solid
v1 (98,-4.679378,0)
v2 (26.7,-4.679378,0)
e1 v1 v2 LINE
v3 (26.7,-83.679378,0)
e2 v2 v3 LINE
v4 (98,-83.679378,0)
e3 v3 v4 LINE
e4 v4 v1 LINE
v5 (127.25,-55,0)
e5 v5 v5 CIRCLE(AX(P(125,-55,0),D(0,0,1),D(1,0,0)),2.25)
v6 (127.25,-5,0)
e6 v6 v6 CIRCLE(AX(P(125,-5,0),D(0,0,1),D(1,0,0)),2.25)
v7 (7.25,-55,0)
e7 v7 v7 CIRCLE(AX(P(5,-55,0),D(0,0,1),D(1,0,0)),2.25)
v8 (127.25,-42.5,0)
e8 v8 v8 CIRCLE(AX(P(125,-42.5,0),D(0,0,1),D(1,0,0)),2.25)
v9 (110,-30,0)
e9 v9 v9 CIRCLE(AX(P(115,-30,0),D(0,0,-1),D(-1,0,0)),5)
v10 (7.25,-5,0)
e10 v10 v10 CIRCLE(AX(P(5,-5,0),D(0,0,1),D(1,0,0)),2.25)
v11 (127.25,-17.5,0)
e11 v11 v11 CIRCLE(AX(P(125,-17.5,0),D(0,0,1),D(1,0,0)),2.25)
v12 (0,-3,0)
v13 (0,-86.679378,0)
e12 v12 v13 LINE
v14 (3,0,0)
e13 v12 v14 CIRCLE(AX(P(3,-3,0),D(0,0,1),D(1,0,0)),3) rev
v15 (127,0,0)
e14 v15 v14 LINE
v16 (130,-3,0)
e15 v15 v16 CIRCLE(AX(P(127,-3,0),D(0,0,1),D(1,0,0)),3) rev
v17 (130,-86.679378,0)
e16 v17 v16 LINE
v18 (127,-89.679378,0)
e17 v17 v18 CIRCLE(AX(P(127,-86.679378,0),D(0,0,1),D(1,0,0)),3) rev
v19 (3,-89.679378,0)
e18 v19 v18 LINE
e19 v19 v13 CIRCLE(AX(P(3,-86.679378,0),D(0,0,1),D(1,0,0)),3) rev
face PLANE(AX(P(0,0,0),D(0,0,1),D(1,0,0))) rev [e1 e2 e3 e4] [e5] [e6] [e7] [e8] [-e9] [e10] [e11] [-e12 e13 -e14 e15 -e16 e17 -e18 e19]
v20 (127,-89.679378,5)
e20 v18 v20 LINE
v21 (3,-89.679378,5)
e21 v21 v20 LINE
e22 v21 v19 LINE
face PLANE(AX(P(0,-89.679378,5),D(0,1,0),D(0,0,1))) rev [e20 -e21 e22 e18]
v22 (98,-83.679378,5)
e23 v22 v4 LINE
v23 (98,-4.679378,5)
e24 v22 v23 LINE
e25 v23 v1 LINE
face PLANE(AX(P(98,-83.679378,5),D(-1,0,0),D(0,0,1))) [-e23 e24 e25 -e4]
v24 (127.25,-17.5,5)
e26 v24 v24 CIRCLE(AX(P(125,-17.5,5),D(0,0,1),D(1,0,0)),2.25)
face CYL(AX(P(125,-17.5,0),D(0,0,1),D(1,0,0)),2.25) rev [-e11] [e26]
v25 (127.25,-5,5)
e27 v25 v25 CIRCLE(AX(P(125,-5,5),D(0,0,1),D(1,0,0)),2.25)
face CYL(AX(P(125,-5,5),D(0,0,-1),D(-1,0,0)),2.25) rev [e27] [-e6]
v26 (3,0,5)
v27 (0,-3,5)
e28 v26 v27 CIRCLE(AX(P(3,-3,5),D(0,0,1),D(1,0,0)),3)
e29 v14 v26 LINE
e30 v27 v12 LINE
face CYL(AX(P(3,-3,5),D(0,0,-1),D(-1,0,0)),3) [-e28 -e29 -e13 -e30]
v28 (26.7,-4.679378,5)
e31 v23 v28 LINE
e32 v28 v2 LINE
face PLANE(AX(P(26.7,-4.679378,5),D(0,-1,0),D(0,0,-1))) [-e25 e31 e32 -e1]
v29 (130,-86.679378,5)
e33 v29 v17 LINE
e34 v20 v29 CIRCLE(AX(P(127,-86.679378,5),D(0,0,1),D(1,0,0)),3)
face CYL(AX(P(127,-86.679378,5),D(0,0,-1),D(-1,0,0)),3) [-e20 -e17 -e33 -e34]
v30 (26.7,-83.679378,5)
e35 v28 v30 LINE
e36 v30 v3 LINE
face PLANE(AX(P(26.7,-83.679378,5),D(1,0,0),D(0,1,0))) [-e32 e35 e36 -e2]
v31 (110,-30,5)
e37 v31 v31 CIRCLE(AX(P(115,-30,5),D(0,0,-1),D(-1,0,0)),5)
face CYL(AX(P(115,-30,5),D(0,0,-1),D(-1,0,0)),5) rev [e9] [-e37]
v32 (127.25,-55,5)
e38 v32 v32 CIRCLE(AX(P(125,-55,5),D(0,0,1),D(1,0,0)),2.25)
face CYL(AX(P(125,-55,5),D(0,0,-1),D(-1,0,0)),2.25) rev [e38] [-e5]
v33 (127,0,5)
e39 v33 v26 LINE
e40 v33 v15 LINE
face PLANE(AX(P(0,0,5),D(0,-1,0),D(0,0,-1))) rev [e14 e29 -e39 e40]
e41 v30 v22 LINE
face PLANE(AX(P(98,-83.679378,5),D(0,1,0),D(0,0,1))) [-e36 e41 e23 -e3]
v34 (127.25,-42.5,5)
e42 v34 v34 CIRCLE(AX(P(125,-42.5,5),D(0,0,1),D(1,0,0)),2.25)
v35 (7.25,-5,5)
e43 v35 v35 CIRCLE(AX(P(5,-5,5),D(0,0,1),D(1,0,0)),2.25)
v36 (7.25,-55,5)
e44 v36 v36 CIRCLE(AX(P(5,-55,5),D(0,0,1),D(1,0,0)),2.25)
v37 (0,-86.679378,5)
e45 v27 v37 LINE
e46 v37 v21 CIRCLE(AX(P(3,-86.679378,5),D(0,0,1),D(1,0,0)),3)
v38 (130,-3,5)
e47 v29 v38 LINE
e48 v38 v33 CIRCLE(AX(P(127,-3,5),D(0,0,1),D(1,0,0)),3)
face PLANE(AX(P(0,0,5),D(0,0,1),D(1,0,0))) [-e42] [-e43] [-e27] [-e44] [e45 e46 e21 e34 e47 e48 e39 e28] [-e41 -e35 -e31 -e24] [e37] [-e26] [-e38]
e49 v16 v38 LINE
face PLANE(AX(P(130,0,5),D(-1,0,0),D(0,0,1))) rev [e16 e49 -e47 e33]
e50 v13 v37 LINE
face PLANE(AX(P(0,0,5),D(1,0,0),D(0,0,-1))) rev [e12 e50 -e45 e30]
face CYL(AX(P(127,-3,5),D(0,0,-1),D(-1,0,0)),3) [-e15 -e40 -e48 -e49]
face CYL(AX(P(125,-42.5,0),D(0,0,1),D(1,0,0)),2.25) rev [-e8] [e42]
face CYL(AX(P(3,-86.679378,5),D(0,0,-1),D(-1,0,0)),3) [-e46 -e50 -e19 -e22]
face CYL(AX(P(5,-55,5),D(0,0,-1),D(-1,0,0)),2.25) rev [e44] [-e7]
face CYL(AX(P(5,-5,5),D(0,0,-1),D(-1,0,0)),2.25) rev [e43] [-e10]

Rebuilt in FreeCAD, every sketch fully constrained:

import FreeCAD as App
import Part
import Sketcher
from FreeCAD import Vector


def edges_at(feature, points):
    """Names of the edges that pass closest to the given points."""
    edges = feature.Shape.Edges
    near = lambda p: min(range(len(edges)), key=lambda i: edges[i].distToShape(Part.Vertex(*p))[0])
    return sorted({f"Edge{near(p) + 1}" for p in points})

doc = App.newDocument("Part")
body = doc.addObject("PartDesign::Body", "Body")

# Sketch on XY plane
sketch1 = body.newObject("Sketcher::SketchObject", "Sketch")
sketch1.AttachmentSupport = (doc.getObject("XY_Plane"), [""])
sketch1.MapMode = "FlatFace"
sketch1.addGeometry([
    Part.LineSegment(Vector(0, 0, 0), Vector(0, -89.679378, 0)),  # 0
    Part.LineSegment(Vector(0, -89.679378, 0), Vector(130, -89.679378, 0)),  # 1
    Part.LineSegment(Vector(130, -89.679378, 0), Vector(130, 0, 0)),  # 2
    Part.LineSegment(Vector(130, 0, 0), Vector(0, 0, 0)),  # 3
    Part.Circle(Vector(5, -55, 0), Vector(0, 0, 1), 2.25),  # 4
    Part.LineSegment(Vector(98, -83.679378, 0), Vector(26.7, -83.679378, 0)),  # 5
    Part.LineSegment(Vector(26.7, -83.679378, 0), Vector(26.7, -4.679378, 0)),  # 6
    Part.LineSegment(Vector(26.7, -4.679378, 0), Vector(98, -4.679378, 0)),  # 7
    Part.LineSegment(Vector(98, -4.679378, 0), Vector(98, -83.679378, 0)),  # 8
    Part.Circle(Vector(125, -55, 0), Vector(0, 0, 1), 2.25),  # 9
    Part.Circle(Vector(5, -5, 0), Vector(0, 0, 1), 2.25),  # 10
    Part.Circle(Vector(125, -5, 0), Vector(0, 0, 1), 2.25),  # 11
], False)
sketch1.addConstraint([
    Sketcher.Constraint("Coincident", 0, 2, 1, 1),
    Sketcher.Constraint("Coincident", 1, 2, 2, 1),
    Sketcher.Constraint("Coincident", 2, 2, 3, 1),
    Sketcher.Constraint("Coincident", 3, 2, 0, 1),
    Sketcher.Constraint("Coincident", 5, 2, 6, 1),
    Sketcher.Constraint("Coincident", 6, 2, 7, 1),
    Sketcher.Constraint("Coincident", 7, 2, 8, 1),
    Sketcher.Constraint("Coincident", 8, 2, 5, 1),
    Sketcher.Constraint("Vertical", 0),
    Sketcher.Constraint("Horizontal", 1),
    Sketcher.Constraint("Vertical", 2),
    Sketcher.Constraint("Horizontal", 3),
    Sketcher.Constraint("Horizontal", 5),
    Sketcher.Constraint("Vertical", 6),
    Sketcher.Constraint("Horizontal", 7),
    Sketcher.Constraint("Vertical", 8),
    Sketcher.Constraint("Coincident", 3, 2, -1, 1),
    Sketcher.Constraint("Equal", 4, 9),
    Sketcher.Constraint("Equal", 9, 10),
    Sketcher.Constraint("Equal", 10, 11),
    Sketcher.Constraint("Horizontal", 4, 3, 9, 3),
    Sketcher.Constraint("Horizontal", 10, 3, 11, 3),
    Sketcher.Constraint("Vertical", 4, 3, 10, 3),
    Sketcher.Constraint("Vertical", 9, 3, 11, 3),
    Sketcher.Constraint("Diameter", 4, 4.5),
    Sketcher.Constraint("DistanceX", 1, 1, 1, 2, 130.0),
    Sketcher.Constraint("DistanceY", 6, 1, 6, 2, 79.0),
    Sketcher.Constraint("DistanceX", 5, 2, 5, 1, 71.3),
    Sketcher.Constraint("DistanceX", -1, 1, 4, 3, 5.0),
    Sketcher.Constraint("DistanceY", 4, 3, -1, 1, 55.0),
    Sketcher.Constraint("DistanceX", -1, 1, 9, 3, 125.0),
    Sketcher.Constraint("DistanceY", 10, 3, -1, 1, 5.0),
    Sketcher.Constraint("DistanceX", -1, 1, 7, 2, 98.0),
    Sketcher.Constraint("DistanceY", 0, 2, 5, 2, 6.0),
    Sketcher.Constraint("DistanceY", 0, 2, 0, 1, 89.679378),
])
pad1 = body.newObject("PartDesign::Pad", "Pad")
pad1.Profile = sketch1
pad1.Length = 5
doc.recompute()

fillet = body.newObject("PartDesign::Fillet", "Fillet")
fillet.Base = (pad1, edges_at(pad1, [
    (0, 0, 2.5),
    (130, 0, 2.5),
    (130, -89.679, 2.5),
    (0, -89.679, 2.5),
]))
fillet.Radius = 3

# Sketch on XY plane
sketch2 = body.newObject("Sketcher::SketchObject", "Sketch001")
sketch2.AttachmentSupport = (doc.getObject("XY_Plane"), [""])
sketch2.MapMode = "FlatFace"
sketch2.addGeometry(Part.Circle(Vector(115, -30, 0), Vector(0, 0, 1), 5), False)
sketch2.addConstraint([
    Sketcher.Constraint("Diameter", 0, 10.0),
    Sketcher.Constraint("DistanceX", -1, 1, 0, 3, 115.0),
    Sketcher.Constraint("DistanceY", 0, 3, -1, 1, 30.0),
])
pocket1 = body.newObject("PartDesign::Pocket", "Pocket")
pocket1.Profile = sketch2
pocket1.Length = 5
pocket1.Reversed = True

# Sketch on XY plane
sketch3 = body.newObject("Sketcher::SketchObject", "Sketch002")
sketch3.AttachmentSupport = (doc.getObject("XY_Plane"), [""])
sketch3.MapMode = "FlatFace"
sketch3.AttachmentOffset = App.Placement(Vector(0, 0, 5), App.Rotation())
sketch3.addGeometry([
    Part.Circle(Vector(125, -42.5, 0), Vector(0, 0, 1), 2.25),
    Part.Circle(Vector(125, -17.5, 0), Vector(0, 0, 1), 2.25),
], False)
sketch3.addConstraint([
    Sketcher.Constraint("Equal", 0, 1),
    Sketcher.Constraint("Vertical", 0, 3, 1, 3),
    Sketcher.Constraint("Diameter", 0, 4.5),
    Sketcher.Constraint("DistanceX", -1, 1, 0, 3, 125.0),
    Sketcher.Constraint("DistanceY", 0, 3, 1, 3, 25.0),
    Sketcher.Constraint("DistanceY", 0, 3, -1, 1, 42.5),
])
pocket2 = body.newObject("PartDesign::Pocket", "Pocket001")
pocket2.Profile = sketch3
pocket2.Length = 5

doc.recompute()
